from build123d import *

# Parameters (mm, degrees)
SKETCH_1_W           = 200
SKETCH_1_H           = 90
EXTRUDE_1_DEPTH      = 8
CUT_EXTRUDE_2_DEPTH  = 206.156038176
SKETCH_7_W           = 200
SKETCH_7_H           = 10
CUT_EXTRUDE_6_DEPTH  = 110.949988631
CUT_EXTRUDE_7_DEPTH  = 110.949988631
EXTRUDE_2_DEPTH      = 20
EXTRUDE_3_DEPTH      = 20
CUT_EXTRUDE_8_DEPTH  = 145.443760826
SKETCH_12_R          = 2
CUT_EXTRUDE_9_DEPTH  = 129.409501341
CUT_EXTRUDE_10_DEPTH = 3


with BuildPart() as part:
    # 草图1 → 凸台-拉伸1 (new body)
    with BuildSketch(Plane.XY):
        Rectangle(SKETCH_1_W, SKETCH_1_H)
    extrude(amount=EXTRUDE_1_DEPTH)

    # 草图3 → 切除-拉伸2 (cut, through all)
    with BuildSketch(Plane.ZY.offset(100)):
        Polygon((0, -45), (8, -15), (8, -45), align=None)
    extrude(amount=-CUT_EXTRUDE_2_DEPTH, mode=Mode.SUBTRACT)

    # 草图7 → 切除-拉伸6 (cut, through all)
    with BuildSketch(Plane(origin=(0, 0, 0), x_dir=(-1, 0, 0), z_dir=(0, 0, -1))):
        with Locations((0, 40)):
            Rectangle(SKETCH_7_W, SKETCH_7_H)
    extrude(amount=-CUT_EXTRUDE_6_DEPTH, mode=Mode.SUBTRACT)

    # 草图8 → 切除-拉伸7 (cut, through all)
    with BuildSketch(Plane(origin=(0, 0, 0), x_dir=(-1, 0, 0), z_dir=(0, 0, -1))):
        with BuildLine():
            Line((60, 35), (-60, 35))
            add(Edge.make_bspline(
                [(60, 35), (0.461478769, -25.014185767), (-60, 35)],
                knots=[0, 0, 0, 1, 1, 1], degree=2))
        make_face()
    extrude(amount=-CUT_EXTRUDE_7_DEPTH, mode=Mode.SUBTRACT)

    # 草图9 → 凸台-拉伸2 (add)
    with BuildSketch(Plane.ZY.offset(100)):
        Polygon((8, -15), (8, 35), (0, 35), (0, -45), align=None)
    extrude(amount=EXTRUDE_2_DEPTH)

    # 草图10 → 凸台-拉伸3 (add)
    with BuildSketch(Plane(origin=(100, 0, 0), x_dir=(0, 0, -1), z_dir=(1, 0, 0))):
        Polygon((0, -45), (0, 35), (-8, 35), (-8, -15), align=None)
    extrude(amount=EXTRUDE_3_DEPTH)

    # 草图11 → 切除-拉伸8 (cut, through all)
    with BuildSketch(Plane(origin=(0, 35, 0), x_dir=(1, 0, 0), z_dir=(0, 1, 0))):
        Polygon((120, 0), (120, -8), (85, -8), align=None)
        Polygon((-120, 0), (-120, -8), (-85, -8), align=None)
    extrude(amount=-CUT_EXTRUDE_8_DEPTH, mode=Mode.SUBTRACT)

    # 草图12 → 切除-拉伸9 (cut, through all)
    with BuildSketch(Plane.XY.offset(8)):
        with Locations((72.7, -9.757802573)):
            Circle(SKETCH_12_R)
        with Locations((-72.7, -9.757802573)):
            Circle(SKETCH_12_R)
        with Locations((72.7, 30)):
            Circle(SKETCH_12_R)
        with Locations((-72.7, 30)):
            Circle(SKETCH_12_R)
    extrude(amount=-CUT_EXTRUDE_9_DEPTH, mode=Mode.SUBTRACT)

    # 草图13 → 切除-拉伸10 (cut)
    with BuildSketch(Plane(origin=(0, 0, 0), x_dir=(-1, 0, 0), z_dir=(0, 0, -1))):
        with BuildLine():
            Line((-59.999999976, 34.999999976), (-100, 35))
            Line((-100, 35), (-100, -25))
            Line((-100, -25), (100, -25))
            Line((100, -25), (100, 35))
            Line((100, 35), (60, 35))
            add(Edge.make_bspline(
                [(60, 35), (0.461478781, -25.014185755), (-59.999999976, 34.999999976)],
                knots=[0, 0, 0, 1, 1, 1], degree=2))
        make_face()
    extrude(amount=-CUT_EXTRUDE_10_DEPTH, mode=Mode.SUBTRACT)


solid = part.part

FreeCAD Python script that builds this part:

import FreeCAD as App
import Part
import Sketcher
from FreeCAD import Vector

doc = App.newDocument("Part")
params = doc.addObject("Spreadsheet::Sheet", "Params")
for row, (alias, value) in enumerate([
    ("sketch1_width", "200 mm"),
    ("sketch1_height", "90 mm"),
    ("pad1_length", "8 mm"),
    ("sketch2_width", "30 mm"),
    ("sketch2_height", "8 mm"),
    ("sketch3_width", "200 mm"),
    ("sketch3_height", "10 mm"),
    ("sketch5_width", "50 mm"),
    ("sketch5_width2", "80 mm"),
    ("sketch5_height", "8 mm"),
    ("pad2_length", "20 mm"),
    ("sketch6_width", "80 mm"),
    ("sketch6_width2", "50 mm"),
    ("sketch6_height", "8 mm"),
    ("pad3_length", "20 mm"),
    ("sketch7_width", "35 mm"),
    ("sketch7_height", "8 mm"),
    ("sketch8_diameter", "4 mm"),
    ("sketch9_width", "40 mm"),
    ("sketch9_height", "60 mm"),
    ("pocket6_length", "3 mm"),
], start=1):
    params.set(f"A{row}", alias)
    params.set(f"B{row}", "=" + value)
    params.setAlias(f"B{row}", alias)

body = doc.addObject("PartDesign::Body", "Body")

sketch1 = doc.addObject("Sketcher::SketchObject", "Sketch")
body.addObject(sketch1)
sketch1.AttachmentSupport = (doc.XY_Plane, [""])
sketch1.MapMode = "FlatFace"
sketch1.addGeometry(Part.LineSegment(Vector(-100, 45, 0), Vector(-100, -45, 0)), False)
sketch1.addGeometry(Part.LineSegment(Vector(-100, -45, 0), Vector(100, -45, 0)), False)
sketch1.addGeometry(Part.LineSegment(Vector(100, -45, 0), Vector(100, 45, 0)), False)
sketch1.addGeometry(Part.LineSegment(Vector(100, 45, 0), Vector(-100, 45, 0)), False)
sketch1.addConstraint(Sketcher.Constraint("Coincident", 0, 2, 1, 1))
sketch1.addConstraint(Sketcher.Constraint("Coincident", 1, 2, 2, 1))
sketch1.addConstraint(Sketcher.Constraint("Coincident", 2, 2, 3, 1))
sketch1.addConstraint(Sketcher.Constraint("Coincident", 3, 2, 0, 1))
sketch1.addConstraint(Sketcher.Constraint("Vertical", 0))
sketch1.addConstraint(Sketcher.Constraint("Horizontal", 1))
sketch1.addConstraint(Sketcher.Constraint("Vertical", 2))
sketch1.addConstraint(Sketcher.Constraint("Horizontal", 3))
sketch1.addConstraint(Sketcher.Constraint("Symmetric", 0, 2, 2, 2, -1, 1))
sketch1.addConstraint(Sketcher.Constraint("DistanceX", 1, 1, 1, 2, 200.0))
sketch1.addConstraint(Sketcher.Constraint("DistanceY", 0, 2, 0, 1, 90.0))
sketch1.setExpression("Constraints[9]", "Params.sketch1_width")
sketch1.setExpression("Constraints[10]", "Params.sketch1_height")
pad1 = doc.addObject("PartDesign::Pad", "Pad")
body.addObject(pad1)
pad1.Profile = sketch1
pad1.setExpression("Length", "Params.pad1_length")

sketch2 = doc.addObject("Sketcher::SketchObject", "Sketch001")
body.addObject(sketch2)
sketch2.AttachmentSupport = (doc.YZ_Plane, [""])
sketch2.MapMode = "FlatFace"
sketch2.AttachmentOffset = App.Placement(Vector(0, 0, -100), App.Rotation())
sketch2.addGeometry(Part.LineSegment(Vector(-15, 8, 0), Vector(-45, 0, 0)), False)
sketch2.addGeometry(Part.LineSegment(Vector(-45, 0, 0), Vector(-45, 8, 0)), False)
sketch2.addGeometry(Part.LineSegment(Vector(-45, 8, 0), Vector(-15, 8, 0)), False)
sketch2.addConstraint(Sketcher.Constraint("Coincident", 0, 2, 1, 1))
sketch2.addConstraint(Sketcher.Constraint("Coincident", 1, 2, 2, 1))
sketch2.addConstraint(Sketcher.Constraint("Coincident", 2, 2, 0, 1))
sketch2.addConstraint(Sketcher.Constraint("Vertical", 1))
sketch2.addConstraint(Sketcher.Constraint("Horizontal", 2))
sketch2.addConstraint(Sketcher.Constraint("PointOnObject", 0, 2, -1))
sketch2.addConstraint(Sketcher.Constraint("DistanceX", 2, 1, 2, 2, 30.0))
sketch2.addConstraint(Sketcher.Constraint("DistanceY", 1, 1, 1, 2, 8.0))
sketch2.addConstraint(Sketcher.Constraint("DistanceX", 0, 2, -1, 1, 45.0))
sketch2.setExpression("Constraints[6]", "Params.sketch2_width")
sketch2.setExpression("Constraints[7]", "Params.sketch2_height")
pocket1 = doc.addObject("PartDesign::Pocket", "Pocket")
body.addObject(pocket1)
pocket1.Profile = sketch2
pocket1.Type = "ThroughAll"
pocket1.Reversed = True

sketch3 = doc.addObject("Sketcher::SketchObject", "Sketch002")
body.addObject(sketch3)
sketch3.AttachmentSupport = (doc.XY_Plane, [""])
sketch3.MapMode = "FlatFace"
sketch3.addGeometry(Part.LineSegment(Vector(100, 45, 0), Vector(100, 35, 0)), False)
sketch3.addGeometry(Part.LineSegment(Vector(100, 35, 0), Vector(-100, 35, 0)), False)
sketch3.addGeometry(Part.LineSegment(Vector(-100, 35, 0), Vector(-100, 45, 0)), False)
sketch3.addGeometry(Part.LineSegment(Vector(-100, 45, 0), Vector(100, 45, 0)), False)
sketch3.addConstraint(Sketcher.Constraint("Coincident", 0, 2, 1, 1))
sketch3.addConstraint(Sketcher.Constraint("Coincident", 1, 2, 2, 1))
sketch3.addConstraint(Sketcher.Constraint("Coincident", 2, 2, 3, 1))
sketch3.addConstraint(Sketcher.Constraint("Coincident", 3, 2, 0, 1))
sketch3.addConstraint(Sketcher.Constraint("Vertical", 0))
sketch3.addConstraint(Sketcher.Constraint("Horizontal", 1))
sketch3.addConstraint(Sketcher.Constraint("Vertical", 2))
sketch3.addConstraint(Sketcher.Constraint("Horizontal", 3))
sketch3.addConstraint(Sketcher.Constraint("DistanceX", 1, 2, 1, 1, 200.0))
sketch3.addConstraint(Sketcher.Constraint("DistanceY", 0, 2, 0, 1, 10.0))
sketch3.addConstraint(Sketcher.Constraint("DistanceX", -1, 1, 0, 2, 100.0))
sketch3.addConstraint(Sketcher.Constraint("DistanceY", -1, 1, 0, 2, 35.0))
sketch3.setExpression("Constraints[8]", "Params.sketch3_width")
sketch3.setExpression("Constraints[9]", "Params.sketch3_height")
pocket2 = doc.addObject("PartDesign::Pocket", "Pocket001")
body.addObject(pocket2)
pocket2.Profile = sketch3
pocket2.Type = "ThroughAll"
pocket2.Reversed = True

sketch4 = doc.addObject("Sketcher::SketchObject", "Sketch003")
body.addObject(sketch4)
sketch4.AttachmentSupport = (doc.XY_Plane, [""])
sketch4.MapMode = "FlatFace"
sketch4.addGeometry(Part.LineSegment(Vector(-60, 35, 0), Vector(60, 35, 0)), False)
sketch4.addGeometry(Part.BSplineCurve([Vector(-60, 35, 0), Vector(-0.461479, -25.014186, 0), Vector(60, 35, 0)], [3, 3], [0, 1], False, 2, [1, 1, 1], False), False)
sketch4.addConstraint(Sketcher.Constraint("Block", 1))
sketch4.addConstraint(Sketcher.Constraint("Coincident", 0, 1, 1, 1))
sketch4.addConstraint(Sketcher.Constraint("Coincident", 1, 2, 0, 2))
pocket3 = doc.addObject("PartDesign::Pocket", "Pocket002")
body.addObject(pocket3)
pocket3.Profile = sketch4
pocket3.Type = "ThroughAll"
pocket3.Reversed = True

sketch5 = doc.addObject("Sketcher::SketchObject", "Sketch004")
body.addObject(sketch5)
sketch5.AttachmentSupport = (doc.YZ_Plane, [""])
sketch5.MapMode = "FlatFace"
sketch5.AttachmentOffset = App.Placement(Vector(0, 0, -100), App.Rotation())
sketch5.addGeometry(Part.LineSegment(Vector(-15, 8, 0), Vector(35, 8, 0)), False)
sketch5.addGeometry(Part.LineSegment(Vector(35, 8, 0), Vector(35, 0, 0)), False)
sketch5.addGeometry(Part.LineSegment(Vector(35, 0, 0), Vector(-45, 0, 0)), False)
sketch5.addGeometry(Part.LineSegment(Vector(-45, 0, 0), Vector(-15, 8, 0)), False)
sketch5.addConstraint(Sketcher.Constraint("Coincident", 0, 2, 1, 1))
sketch5.addConstraint(Sketcher.Constraint("Coincident", 1, 2, 2, 1))
sketch5.addConstraint(Sketcher.Constraint("Coincident", 2, 2, 3, 1))
sketch5.addConstraint(Sketcher.Constraint("Coincident", 3, 2, 0, 1))
sketch5.addConstraint(Sketcher.Constraint("Horizontal", 0))
sketch5.addConstraint(Sketcher.Constraint("Vertical", 1))
sketch5.addConstraint(Sketcher.Constraint("Horizontal", 2))
sketch5.addConstraint(Sketcher.Constraint("PointOnObject", 1, 2, -1))
sketch5.addConstraint(Sketcher.Constraint("DistanceX", 0, 1, 0, 2, 50.0))
sketch5.addConstraint(Sketcher.Constraint("DistanceX", 2, 2, 2, 1, 80.0))
sketch5.addConstraint(Sketcher.Constraint("DistanceY", 1, 2, 1, 1, 8.0))
sketch5.addConstraint(Sketcher.Constraint("DistanceX", -1, 1, 0, 2, 35.0))
sketch5.setExpression("Constraints[8]", "Params.sketch5_width")
sketch5.setExpression("Constraints[9]", "Params.sketch5_width2")
sketch5.setExpression("Constraints[10]", "Params.sketch5_height")
pad2 = doc.addObject("PartDesign::Pad", "Pad001")
body.addObject(pad2)
pad2.Profile = sketch5
pad2.setExpression("Length", "Params.pad2_length")
pad2.Reversed = True

sketch6 = doc.addObject("Sketcher::SketchObject", "Sketch005")
body.addObject(sketch6)
sketch6.AttachmentSupport = (doc.YZ_Plane, [""])
sketch6.MapMode = "FlatFace"
sketch6.AttachmentOffset = App.Placement(Vector(0, 0, 100), App.Rotation())
sketch6.addGeometry(Part.LineSegment(Vector(-45, 0, 0), Vector(35, 0, 0)), False)
sketch6.addGeometry(Part.LineSegment(Vector(35, 0, 0), Vector(35, 8, 0)), False)
sketch6.addGeometry(Part.LineSegment(Vector(35, 8, 0), Vector(-15, 8, 0)), False)
sketch6.addGeometry(Part.LineSegment(Vector(-15, 8, 0), Vector(-45, 0, 0)), False)
sketch6.addConstraint(Sketcher.Constraint("Coincident", 0, 2, 1, 1))
sketch6.addConstraint(Sketcher.Constraint("Coincident", 1, 2, 2, 1))
sketch6.addConstraint(Sketcher.Constraint("Coincident", 2, 2, 3, 1))
sketch6.addConstraint(Sketcher.Constraint("Coincident", 3, 2, 0, 1))
sketch6.addConstraint(Sketcher.Constraint("Horizontal", 0))
sketch6.addConstraint(Sketcher.Constraint("Vertical", 1))
sketch6.addConstraint(Sketcher.Constraint("Horizontal", 2))
sketch6.addConstraint(Sketcher.Constraint("PointOnObject", 0, 2, -1))
sketch6.addConstraint(Sketcher.Constraint("DistanceX", 0, 1, 0, 2, 80.0))
sketch6.addConstraint(Sketcher.Constraint("DistanceX", 2, 2, 2, 1, 50.0))
sketch6.addConstraint(Sketcher.Constraint("DistanceY", 1, 1, 1, 2, 8.0))
sketch6.addConstraint(Sketcher.Constraint("DistanceX", -1, 1, 0, 2, 35.0))
sketch6.setExpression("Constraints[8]", "Params.sketch6_width")
sketch6.setExpression("Constraints[9]", "Params.sketch6_width2")
sketch6.setExpression("Constraints[10]", "Params.sketch6_height")
pad3 = doc.addObject("PartDesign::Pad", "Pad002")
body.addObject(pad3)
pad3.Profile = sketch6
pad3.setExpression("Length", "Params.pad3_length")

sketch7 = doc.addObject("Sketcher::SketchObject", "Sketch006")
body.addObject(sketch7)
sketch7.AttachmentSupport = (doc.XZ_Plane, [""])
sketch7.MapMode = "FlatFace"
sketch7.AttachmentOffset = App.Placement(Vector(0, 0, -35), App.Rotation())
sketch7.addGeometry(Part.LineSegment(Vector(120, 8, 0), Vector(120, 0, 0)), False)
sketch7.addGeometry(Part.LineSegment(Vector(120, 0, 0), Vector(85, 8, 0)), False)
sketch7.addGeometry(Part.LineSegment(Vector(85, 8, 0), Vector(120, 8, 0)), False)
sketch7.addGeometry(Part.LineSegment(Vector(-120, 0, 0), Vector(-120, 8, 0)), False)
sketch7.addGeometry(Part.LineSegment(Vector(-120, 8, 0), Vector(-85, 8, 0)), False)
sketch7.addGeometry(Part.LineSegment(Vector(-85, 8, 0), Vector(-120, 0, 0)), False)
sketch7.addConstraint(Sketcher.Constraint("Coincident", 0, 2, 1, 1))
sketch7.addConstraint(Sketcher.Constraint("Coincident", 1, 2, 2, 1))
sketch7.addConstraint(Sketcher.Constraint("Coincident", 2, 2, 0, 1))
sketch7.addConstraint(Sketcher.Constraint("Coincident", 3, 2, 4, 1))
sketch7.addConstraint(Sketcher.Constraint("Coincident", 4, 2, 5, 1))
sketch7.addConstraint(Sketcher.Constraint("Coincident", 5, 2, 3, 1))
sketch7.addConstraint(Sketcher.Constraint("Vertical", 0))
sketch7.addConstraint(Sketcher.Constraint("Horizontal", 2))
sketch7.addConstraint(Sketcher.Constraint("Vertical", 3))
sketch7.addConstraint(Sketcher.Constraint("Horizontal", 4))
sketch7.addConstraint(Sketcher.Constraint("Symmetric", 0, 2, 5, 2, -1, 1))
sketch7.addConstraint(Sketcher.Constraint("Symmetric", 1, 2, 4, 2, -2))
sketch7.addConstraint(Sketcher.Constraint("PointOnObject", 0, 2, -1))
sketch7.addConstraint(Sketcher.Constraint("DistanceX", 2, 1, 2, 2, 35.0))
sketch7.addConstraint(Sketcher.Constraint("DistanceY", 0, 2, 0, 1, 8.0))
sketch7.addConstraint(Sketcher.Constraint("DistanceX", -1, 1, 0, 2, 120.0))
sketch7.setExpression("Constraints[13]", "Params.sketch7_width")
sketch7.setExpression("Constraints[14]", "Params.sketch7_height")
pocket4 = doc.addObject("PartDesign::Pocket", "Pocket003")
body.addObject(pocket4)
pocket4.Profile = sketch7
pocket4.Type = "ThroughAll"
pocket4.Reversed = True

sketch8 = doc.addObject("Sketcher::SketchObject", "Sketch007")
body.addObject(sketch8)
sketch8.AttachmentSupport = (doc.XY_Plane, [""])
sketch8.MapMode = "FlatFace"
sketch8.AttachmentOffset = App.Placement(Vector(0, 0, 8), App.Rotation())
sketch8.addGeometry(Part.Circle(Vector(72.7, -9.8, 0), Vector(0, 0, 1), 2), False)
sketch8.addGeometry(Part.Circle(Vector(-72.7, -9.8, 0), Vector(0, 0, 1), 2), False)
sketch8.addGeometry(Part.Circle(Vector(72.7, 30, 0), Vector(0, 0, 1), 2), False)
sketch8.addGeometry(Part.Circle(Vector(-72.7, 30, 0), Vector(0, 0, 1), 2), False)
sketch8.addConstraint(Sketcher.Constraint("Equal", 0, 1))
sketch8.addConstraint(Sketcher.Constraint("Equal", 1, 2))
sketch8.addConstraint(Sketcher.Constraint("Equal", 2, 3))
sketch8.addConstraint(Sketcher.Constraint("Symmetric", 0, 3, 1, 3, -2))
sketch8.addConstraint(Sketcher.Constraint("Symmetric", 2, 3, 3, 3, -2))
sketch8.addConstraint(Sketcher.Constraint("Vertical", 0, 3, 2, 3))
sketch8.addConstraint(Sketcher.Constraint("Diameter", 0, 4.0))
sketch8.addConstraint(Sketcher.Constraint("DistanceY", -1, 1, 2, 3, 30.0))
sketch8.addConstraint(Sketcher.Constraint("DistanceX", -1, 1, 0, 3, 72.7))
sketch8.addConstraint(Sketcher.Constraint("DistanceY", 0, 3, -1, 1, 9.757803))
sketch8.setExpression("Constraints[6]", "Params.sketch8_diameter")
pocket5 = doc.addObject("PartDesign::Pocket", "Pocket004")
body.addObject(pocket5)
pocket5.Profile = sketch8
pocket5.Type = "ThroughAll"

sketch9 = doc.addObject("Sketcher::SketchObject", "Sketch008")
body.addObject(sketch9)
sketch9.AttachmentSupport = (doc.XY_Plane, [""])
sketch9.MapMode = "FlatFace"
sketch9.addGeometry(Part.LineSegment(Vector(60, 35, 0), Vector(100, 35, 0)), False)
sketch9.addGeometry(Part.LineSegment(Vector(100, 35, 0), Vector(100, -25, 0)), False)
sketch9.addGeometry(Part.LineSegment(Vector(100, -25, 0), Vector(-100, -25, 0)), False)
sketch9.addGeometry(Part.LineSegment(Vector(-100, -25, 0), Vector(-100, 35, 0)), False)
sketch9.addGeometry(Part.LineSegment(Vector(-100, 35, 0), Vector(-60, 35, 0)), False)
sketch9.addGeometry(Part.BSplineCurve([Vector(-60, 35, 0), Vector(-0.461479, -25.014186, 0), Vector(60, 35, 0)], [3, 3], [0, 1], False, 2, [1, 1, 1], False), False)
sketch9.addConstraint(Sketcher.Constraint("Block", 5))
sketch9.addConstraint(Sketcher.Constraint("Coincident", 0, 2, 1, 1))
sketch9.addConstraint(Sketcher.Constraint("Coincident", 1, 2, 2, 1))
sketch9.addConstraint(Sketcher.Constraint("Coincident", 2, 2, 3, 1))
sketch9.addConstraint(Sketcher.Constraint("Coincident", 3, 2, 4, 1))
sketch9.addConstraint(Sketcher.Constraint("Coincident", 4, 2, 5, 1))
sketch9.addConstraint(Sketcher.Constraint("Coincident", 5, 2, 0, 1))
sketch9.addConstraint(Sketcher.Constraint("Horizontal", 0))
sketch9.addConstraint(Sketcher.Constraint("Vertical", 1))
sketch9.addConstraint(Sketcher.Constraint("Horizontal", 2))
sketch9.addConstraint(Sketcher.Constraint("Vertical", 3))
sketch9.addConstraint(Sketcher.Constraint("Horizontal", 4))
sketch9.addConstraint(Sketcher.Constraint("Equal", 0, 4))
sketch9.addConstraint(Sketcher.Constraint("DistanceX", 0, 1, 0, 2, 40.0))
sketch9.addConstraint(Sketcher.Constraint("DistanceY", 1, 2, 1, 1, 60.0))
sketch9.setExpression("Constraints[13]", "Params.sketch9_width")
sketch9.setExpression("Constraints[14]", "Params.sketch9_height")
pocket6 = doc.addObject("PartDesign::Pocket", "Pocket005")
body.addObject(pocket6)
pocket6.Profile = sketch9
pocket6.setExpression("Length", "Params.pocket6_length")
pocket6.Reversed = True

doc.recompute()
